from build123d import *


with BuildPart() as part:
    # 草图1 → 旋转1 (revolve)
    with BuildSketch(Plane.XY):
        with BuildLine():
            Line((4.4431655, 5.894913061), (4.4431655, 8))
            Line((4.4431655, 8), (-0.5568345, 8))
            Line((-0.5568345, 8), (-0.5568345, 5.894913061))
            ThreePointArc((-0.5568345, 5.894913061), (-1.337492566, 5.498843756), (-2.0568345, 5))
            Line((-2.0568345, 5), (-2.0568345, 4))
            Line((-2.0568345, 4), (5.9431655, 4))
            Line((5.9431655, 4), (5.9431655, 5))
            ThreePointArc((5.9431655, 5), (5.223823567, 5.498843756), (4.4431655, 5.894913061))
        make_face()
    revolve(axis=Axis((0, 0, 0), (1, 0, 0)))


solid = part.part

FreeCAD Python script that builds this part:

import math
import FreeCAD as App
import Part
import Sketcher
Q = App.Units.Quantity

doc = App.newDocument("Part")
params = doc.addObject("Spreadsheet::Sheet", "Params")
for row, (alias, value) in enumerate([
    ("sketch1_width", "5 mm"),
    ("sketch1_width2", "8 mm"),
    ("sketch1_height", "1 mm"),
    ("revolution_angle", "360 deg"),
], start=1):
    params.set(f"A{row}", alias)
    params.set(f"B{row}", "=" + value)
    params.setAlias(f"B{row}", alias)

body = doc.addObject("PartDesign::Body", "Body")

# Sketch on XY plane
sketch1 = doc.addObject("Sketcher::SketchObject", "Sketch")
body.addObject(sketch1)
sketch1.AttachmentSupport = (doc.XY_Plane, [""])
sketch1.MapMode = "FlatFace"
sketch1.addGeometry(Part.LineSegment(App.Vector(4.4, 5.9, 0), App.Vector(4.4, 8, 0)), False)
sketch1.addGeometry(Part.LineSegment(App.Vector(4.4, 8, 0), App.Vector(-0.6, 8, 0)), False)
sketch1.addGeometry(Part.LineSegment(App.Vector(-0.6, 8, 0), App.Vector(-0.6, 5.9, 0)), False)
sketch1.addGeometry(Part.ArcOfCircle(Part.Circle(App.Vector(1.9, 0, 0), App.Vector(0, 0, 1), 6.4), math.radians(112.98), math.radians(128.66)), False)
sketch1.addGeometry(Part.LineSegment(App.Vector(-2.1, 5, 0), App.Vector(-2.1, 4, 0)), False)
sketch1.addGeometry(Part.LineSegment(App.Vector(-2.1, 4, 0), App.Vector(5.9, 4, 0)), False)
sketch1.addGeometry(Part.LineSegment(App.Vector(5.9, 4, 0), App.Vector(5.9, 5, 0)), False)
sketch1.addGeometry(Part.ArcOfCircle(Part.Circle(App.Vector(1.9, 0, 0), App.Vector(0, 0, 1), 6.4), math.radians(51.34), math.radians(67.02)), False)
sketch1.addConstraint(Sketcher.Constraint("Coincident", 0, 2, 1, 1))
sketch1.addConstraint(Sketcher.Constraint("Coincident", 1, 2, 2, 1))
sketch1.addConstraint(Sketcher.Constraint("Coincident", 2, 2, 3, 1))
sketch1.addConstraint(Sketcher.Constraint("Coincident", 3, 2, 4, 1))
sketch1.addConstraint(Sketcher.Constraint("Coincident", 4, 2, 5, 1))
sketch1.addConstraint(Sketcher.Constraint("Coincident", 5, 2, 6, 1))
sketch1.addConstraint(Sketcher.Constraint("Coincident", 6, 2, 7, 1))
sketch1.addConstraint(Sketcher.Constraint("Coincident", 7, 2, 0, 1))
sketch1.addConstraint(Sketcher.Constraint("Vertical", 0))
sketch1.addConstraint(Sketcher.Constraint("Horizontal", 1))
sketch1.addConstraint(Sketcher.Constraint("Vertical", 2))
sketch1.addConstraint(Sketcher.Constraint("Vertical", 4))
sketch1.addConstraint(Sketcher.Constraint("Horizontal", 5))
sketch1.addConstraint(Sketcher.Constraint("Vertical", 6))
sketch1.addConstraint(Sketcher.Constraint("Coincident", 7, 3, 3, 3))
sketch1.addConstraint(Sketcher.Constraint("Equal", 3, 7))
sketch1.addConstraint(Sketcher.Constraint("PointOnObject", 3, 3, -1))
sketch1.addConstraint(Sketcher.Constraint("Horizontal", 3, 2, 6, 2))
sketch1.addConstraint(Sketcher.Constraint("Horizontal", 2, 2, 7, 2))
sketch1.addConstraint(Sketcher.Constraint("DistanceX", 1, 2, 1, 1, Q("5 mm")))
sketch1.addConstraint(Sketcher.Constraint("DistanceX", 5, 1, 5, 2, Q("8 mm")))
sketch1.addConstraint(Sketcher.Constraint("DistanceY", 4, 2, 4, 1, Q("1 mm")))
sketch1.addConstraint(Sketcher.Constraint("DistanceY", -1, 1, 0, 2, Q("8 mm")))
sketch1.addConstraint(Sketcher.Constraint("DistanceY", -1, 1, 3, 2, Q("5 mm")))
sketch1.addConstraint(Sketcher.Constraint("DistanceX", -1, 1, 3, 3, Q("1.943165 mm")))
sketch1.setExpression("Constraints[19]", "Params.sketch1_width")
sketch1.setExpression("Constraints[20]", "Params.sketch1_width2")
sketch1.setExpression("Constraints[21]", "Params.sketch1_height")
revolution = doc.addObject("PartDesign::Revolution", "Revolution")
body.addObject(revolution)
revolution.Profile = sketch1
revolution.ReferenceAxis = (sketch1, ["H_Axis"])
revolution.setExpression("Angle", "Params.revolution_angle")

doc.recompute()
